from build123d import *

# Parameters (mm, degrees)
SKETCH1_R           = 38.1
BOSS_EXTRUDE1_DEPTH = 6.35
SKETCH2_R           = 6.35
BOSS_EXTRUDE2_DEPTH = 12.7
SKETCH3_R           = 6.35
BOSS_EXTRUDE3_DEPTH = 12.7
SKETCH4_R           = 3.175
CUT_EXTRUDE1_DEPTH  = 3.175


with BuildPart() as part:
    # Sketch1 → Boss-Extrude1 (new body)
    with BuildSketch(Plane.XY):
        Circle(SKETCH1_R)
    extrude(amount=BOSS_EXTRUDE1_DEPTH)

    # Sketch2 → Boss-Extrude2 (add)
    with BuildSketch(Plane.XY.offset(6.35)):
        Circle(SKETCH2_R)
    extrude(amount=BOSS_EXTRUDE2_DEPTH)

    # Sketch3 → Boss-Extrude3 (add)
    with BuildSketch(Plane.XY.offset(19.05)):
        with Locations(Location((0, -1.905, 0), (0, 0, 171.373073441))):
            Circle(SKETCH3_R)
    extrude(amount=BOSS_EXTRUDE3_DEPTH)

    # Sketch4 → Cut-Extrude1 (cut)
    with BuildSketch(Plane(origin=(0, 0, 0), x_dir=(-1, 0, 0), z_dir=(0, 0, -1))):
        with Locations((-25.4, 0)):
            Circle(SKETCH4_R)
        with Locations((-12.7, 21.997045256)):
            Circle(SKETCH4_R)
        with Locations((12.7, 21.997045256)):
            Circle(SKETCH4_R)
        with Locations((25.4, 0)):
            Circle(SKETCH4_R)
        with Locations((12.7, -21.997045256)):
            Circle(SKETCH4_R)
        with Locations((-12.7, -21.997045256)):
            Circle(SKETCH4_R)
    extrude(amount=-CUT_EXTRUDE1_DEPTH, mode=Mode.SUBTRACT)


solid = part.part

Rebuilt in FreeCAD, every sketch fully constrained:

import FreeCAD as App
import Part
import Sketcher
Q = App.Units.Quantity

doc = App.newDocument("Part")
params = doc.addObject("Spreadsheet::Sheet", "Params")
for row, (alias, value) in enumerate([
    ("sketch1_diameter", "3 in"),
    ("pad1_length", "0.25 in"),
    ("sketch2_diameter", "0.5 in"),
    ("pad2_length", "0.5 in"),
    ("sketch3_diameter", "0.5 in"),
    ("pad3_length", "0.5 in"),
    ("sketch4_diameter", "0.25 in"),
    ("pocket1_length", "0.125 in"),
], start=1):
    params.set(f"A{row}", alias)
    params.set(f"B{row}", "=" + value)
    params.setAlias(f"B{row}", alias)

body = doc.addObject("PartDesign::Body", "Body")

# Sketch on XY plane
sketch1 = body.newObject("Sketcher::SketchObject", "Sketch")
sketch1.AttachmentSupport = (doc.getObject("XY_Plane"), [""])
sketch1.MapMode = "FlatFace"
sketch1.addGeometry(Part.Circle(App.Vector(0, 0, 0), App.Vector(0, 0, 1), 38.1), False)
sketch1.addConstraint(Sketcher.Constraint("Coincident", 0, 3, -1, 1))
sketch1.addConstraint(Sketcher.Constraint("Diameter", 0, Q("3 in")))
sketch1.setExpression("Constraints[1]", "Params.sketch1_diameter")
pad1 = body.newObject("PartDesign::Pad", "Pad")
pad1.Profile = sketch1
pad1.setExpression("Length", "Params.pad1_length")

# Sketch on XY plane
sketch2 = body.newObject("Sketcher::SketchObject", "Sketch001")
sketch2.AttachmentSupport = (doc.getObject("XY_Plane"), [""])
sketch2.MapMode = "FlatFace"
sketch2.AttachmentOffset = App.Placement(App.Vector(0, 0, 0.25 * 25.4), App.Rotation())
sketch2.addGeometry(Part.Circle(App.Vector(0, 0, 0), App.Vector(0, 0, 1), 6.35), False)
sketch2.addConstraint(Sketcher.Constraint("Coincident", 0, 3, -1, 1))
sketch2.addConstraint(Sketcher.Constraint("Diameter", 0, Q("0.5 in")))
sketch2.setExpression("Constraints[1]", "Params.sketch2_diameter")
pad2 = body.newObject("PartDesign::Pad", "Pad001")
pad2.Profile = sketch2
pad2.setExpression("Length", "Params.pad2_length")

# Sketch on XY plane
sketch3 = body.newObject("Sketcher::SketchObject", "Sketch002")
sketch3.AttachmentSupport = (doc.getObject("XY_Plane"), [""])
sketch3.MapMode = "FlatFace"
sketch3.AttachmentOffset = App.Placement(App.Vector(0, 0, 0.75 * 25.4), App.Rotation())
sketch3.addGeometry(Part.Circle(App.Vector(0, -1.905, 0), App.Vector(0, 0, 1), 6.35), False)
sketch3.addConstraint(Sketcher.Constraint("PointOnObject", 0, 3, -2))
sketch3.addConstraint(Sketcher.Constraint("Diameter", 0, Q("0.5 in")))
sketch3.addConstraint(Sketcher.Constraint("DistanceY", 0, 3, -1, 1, Q("0.075 in")))
sketch3.setExpression("Constraints[1]", "Params.sketch3_diameter")
pad3 = body.newObject("PartDesign::Pad", "Pad002")
pad3.Profile = sketch3
pad3.setExpression("Length", "Params.pad3_length")

# Sketch on XY plane
sketch4 = body.newObject("Sketcher::SketchObject", "Sketch003")
sketch4.AttachmentSupport = (doc.getObject("XY_Plane"), [""])
sketch4.MapMode = "FlatFace"
sketch4.addGeometry(Part.Circle(App.Vector(25.4, 0, 0), App.Vector(0, 0, 1), 3.175), False)
sketch4.addGeometry(Part.Circle(App.Vector(12.7, 21.997045, 0), App.Vector(0, 0, 1), 3.175), False)
sketch4.addGeometry(Part.Circle(App.Vector(-12.7, 21.997045, 0), App.Vector(0, 0, 1), 3.175), False)
sketch4.addGeometry(Part.Circle(App.Vector(-25.4, 0, 0), App.Vector(0, 0, 1), 3.175), False)
sketch4.addGeometry(Part.Circle(App.Vector(-12.7, -21.997045, 0), App.Vector(0, 0, 1), 3.175), False)
sketch4.addGeometry(Part.Circle(App.Vector(12.7, -21.997045, 0), App.Vector(0, 0, 1), 3.175), False)
sketch4.addConstraint(Sketcher.Constraint("Equal", 0, 1))
sketch4.addConstraint(Sketcher.Constraint("Equal", 1, 2))
sketch4.addConstraint(Sketcher.Constraint("Equal", 2, 3))
sketch4.addConstraint(Sketcher.Constraint("Equal", 3, 4))
sketch4.addConstraint(Sketcher.Constraint("Equal", 4, 5))
sketch4.addConstraint(Sketcher.Constraint("Symmetric", 0, 3, 3, 3, -1, 1))
sketch4.addConstraint(Sketcher.Constraint("Symmetric", 1, 3, 4, 3, -1, 1))
sketch4.addConstraint(Sketcher.Constraint("Symmetric", 2, 3, 5, 3, -1, 1))
sketch4.addConstraint(Sketcher.Constraint("Symmetric", 1, 3, 2, 3, -2))
sketch4.addConstraint(Sketcher.Constraint("PointOnObject", 0, 3, -1))
sketch4.addConstraint(Sketcher.Constraint("Diameter", 0, Q("0.25 in")))
sketch4.addConstraint(Sketcher.Constraint("DistanceX", -1, 1, 0, 3, Q("1 in")))
sketch4.addConstraint(Sketcher.Constraint("DistanceX", 2, 3, 1, 3, Q("1 in")))
sketch4.addConstraint(Sketcher.Constraint("DistanceY", 4, 3, 2, 3, Q("43.994091 mm")))
sketch4.setExpression("Constraints[10]", "Params.sketch4_diameter")
pocket1 = body.newObject("PartDesign::Pocket", "Pocket")
pocket1.Profile = sketch4
pocket1.setExpression("Length", "Params.pocket1_length")
pocket1.Reversed = True

doc.recompute()
